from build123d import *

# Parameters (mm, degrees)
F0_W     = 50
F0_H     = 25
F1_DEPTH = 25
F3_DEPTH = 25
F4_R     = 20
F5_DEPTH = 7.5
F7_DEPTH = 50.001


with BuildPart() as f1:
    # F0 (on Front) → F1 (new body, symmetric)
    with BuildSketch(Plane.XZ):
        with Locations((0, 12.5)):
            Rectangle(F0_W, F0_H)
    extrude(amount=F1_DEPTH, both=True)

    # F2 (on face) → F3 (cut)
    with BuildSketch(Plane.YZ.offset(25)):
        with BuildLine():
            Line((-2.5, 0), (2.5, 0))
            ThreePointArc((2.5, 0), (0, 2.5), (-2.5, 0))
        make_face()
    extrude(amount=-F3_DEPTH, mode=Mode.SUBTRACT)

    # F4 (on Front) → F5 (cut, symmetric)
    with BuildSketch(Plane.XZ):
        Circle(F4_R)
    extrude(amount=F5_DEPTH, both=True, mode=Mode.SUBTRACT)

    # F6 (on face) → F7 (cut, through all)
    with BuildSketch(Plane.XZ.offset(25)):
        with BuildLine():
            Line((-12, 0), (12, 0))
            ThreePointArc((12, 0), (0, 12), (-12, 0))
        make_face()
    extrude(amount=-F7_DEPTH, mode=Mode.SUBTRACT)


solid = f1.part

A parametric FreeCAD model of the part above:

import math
import FreeCAD as App
import Part
import Sketcher


def add_polygon(sketch, points):
    """Adds a closed chain of lines whose ends are joined by coincident constraints."""
    first, n = sketch.GeometryCount, len(points)
    for a, b in zip(points, points[1:] + points[:1]):
        sketch.addGeometry(Part.LineSegment(App.Vector(*a, 0), App.Vector(*b, 0)), False)
    for i in range(n):
        sketch.addConstraint(Sketcher.Constraint("Coincident", first + i, 2, first + (i + 1) % n, 1))

doc = App.newDocument("Part")
body = doc.addObject("PartDesign::Body", "Body")

# Sketch on XZ plane
sketch1 = body.newObject("Sketcher::SketchObject", "Sketch")
sketch1.AttachmentSupport = (doc.getObject("XZ_Plane"), [""])
sketch1.MapMode = "FlatFace"
add_polygon(sketch1, [(-25, 25), (-25, 0), (25, 0), (25, 25)])  # lines 0-3
sketch1.addConstraint(Sketcher.Constraint("Vertical", 0))
sketch1.addConstraint(Sketcher.Constraint("Horizontal", 1))
sketch1.addConstraint(Sketcher.Constraint("Vertical", 2))
sketch1.addConstraint(Sketcher.Constraint("Horizontal", 3))
sketch1.addConstraint(Sketcher.Constraint("Symmetric", 0, 2, 1, 2, -1, 1))
sketch1.addConstraint(Sketcher.Constraint("DistanceX", 1, 1, 1, 2, 50.0))
sketch1.addConstraint(Sketcher.Constraint("DistanceY", 0, 2, 0, 1, 25.0))
pad1 = body.newObject("PartDesign::Pad", "Pad")
pad1.Profile = sketch1
pad1.Length = 50
pad1.Midplane = True

# Sketch on YZ plane
sketch2 = body.newObject("Sketcher::SketchObject", "Sketch001")
sketch2.AttachmentSupport = (doc.getObject("YZ_Plane"), [""])
sketch2.MapMode = "FlatFace"
sketch2.AttachmentOffset = App.Placement(App.Vector(0, 0, 25), App.Rotation())
sketch2.addGeometry(Part.LineSegment(App.Vector(-2.5, 0, 0), App.Vector(2.5, 0, 0)), False)
sketch2.addGeometry(Part.ArcOfCircle(Part.Circle(App.Vector(0, 0, 0), App.Vector(0, 0, 1), 2.5), math.radians(0), math.radians(180)), False)
sketch2.addConstraint(Sketcher.Constraint("Coincident", 0, 1, 1, 2))
sketch2.addConstraint(Sketcher.Constraint("Coincident", 1, 1, 0, 2))
sketch2.addConstraint(Sketcher.Constraint("Horizontal", 0))
sketch2.addConstraint(Sketcher.Constraint("Coincident", 1, 3, -1, 1))
sketch2.addConstraint(Sketcher.Constraint("PointOnObject", 0, 1, -1))
sketch2.addConstraint(Sketcher.Constraint("Radius", 1, 2.5))
pocket1 = body.newObject("PartDesign::Pocket", "Pocket")
pocket1.Profile = sketch2
pocket1.Length = 25

# Sketch on XZ plane
sketch3 = body.newObject("Sketcher::SketchObject", "Sketch002")
sketch3.AttachmentSupport = (doc.getObject("XZ_Plane"), [""])
sketch3.MapMode = "FlatFace"
sketch3.addGeometry(Part.Circle(App.Vector(0, 0, 0), App.Vector(0, 0, 1), 20), False)
sketch3.addConstraint(Sketcher.Constraint("Coincident", 0, 3, -1, 1))
sketch3.addConstraint(Sketcher.Constraint("Diameter", 0, 40.0))
pocket2 = body.newObject("PartDesign::Pocket", "Pocket001")
pocket2.Profile = sketch3
pocket2.Length = 15
pocket2.Midplane = True

# Sketch on XZ plane
sketch4 = body.newObject("Sketcher::SketchObject", "Sketch003")
sketch4.AttachmentSupport = (doc.getObject("XZ_Plane"), [""])
sketch4.MapMode = "FlatFace"
sketch4.AttachmentOffset = App.Placement(App.Vector(0, 0, 25), App.Rotation())
sketch4.addGeometry(Part.LineSegment(App.Vector(-12, 0, 0), App.Vector(12, 0, 0)), False)
sketch4.addGeometry(Part.ArcOfCircle(Part.Circle(App.Vector(0, 0, 0), App.Vector(0, 0, 1), 12), math.radians(0), math.radians(180)), False)
sketch4.addConstraint(Sketcher.Constraint("Coincident", 0, 1, 1, 2))
sketch4.addConstraint(Sketcher.Constraint("Coincident", 1, 1, 0, 2))
sketch4.addConstraint(Sketcher.Constraint("Horizontal", 0))
sketch4.addConstraint(Sketcher.Constraint("Coincident", 1, 3, -1, 1))
sketch4.addConstraint(Sketcher.Constraint("PointOnObject", 0, 1, -1))
sketch4.addConstraint(Sketcher.Constraint("Radius", 1, 12.0))
pocket3 = body.newObject("PartDesign::Pocket", "Pocket002")
pocket3.Profile = sketch4
pocket3.Type = "ThroughAll"

doc.recompute()
